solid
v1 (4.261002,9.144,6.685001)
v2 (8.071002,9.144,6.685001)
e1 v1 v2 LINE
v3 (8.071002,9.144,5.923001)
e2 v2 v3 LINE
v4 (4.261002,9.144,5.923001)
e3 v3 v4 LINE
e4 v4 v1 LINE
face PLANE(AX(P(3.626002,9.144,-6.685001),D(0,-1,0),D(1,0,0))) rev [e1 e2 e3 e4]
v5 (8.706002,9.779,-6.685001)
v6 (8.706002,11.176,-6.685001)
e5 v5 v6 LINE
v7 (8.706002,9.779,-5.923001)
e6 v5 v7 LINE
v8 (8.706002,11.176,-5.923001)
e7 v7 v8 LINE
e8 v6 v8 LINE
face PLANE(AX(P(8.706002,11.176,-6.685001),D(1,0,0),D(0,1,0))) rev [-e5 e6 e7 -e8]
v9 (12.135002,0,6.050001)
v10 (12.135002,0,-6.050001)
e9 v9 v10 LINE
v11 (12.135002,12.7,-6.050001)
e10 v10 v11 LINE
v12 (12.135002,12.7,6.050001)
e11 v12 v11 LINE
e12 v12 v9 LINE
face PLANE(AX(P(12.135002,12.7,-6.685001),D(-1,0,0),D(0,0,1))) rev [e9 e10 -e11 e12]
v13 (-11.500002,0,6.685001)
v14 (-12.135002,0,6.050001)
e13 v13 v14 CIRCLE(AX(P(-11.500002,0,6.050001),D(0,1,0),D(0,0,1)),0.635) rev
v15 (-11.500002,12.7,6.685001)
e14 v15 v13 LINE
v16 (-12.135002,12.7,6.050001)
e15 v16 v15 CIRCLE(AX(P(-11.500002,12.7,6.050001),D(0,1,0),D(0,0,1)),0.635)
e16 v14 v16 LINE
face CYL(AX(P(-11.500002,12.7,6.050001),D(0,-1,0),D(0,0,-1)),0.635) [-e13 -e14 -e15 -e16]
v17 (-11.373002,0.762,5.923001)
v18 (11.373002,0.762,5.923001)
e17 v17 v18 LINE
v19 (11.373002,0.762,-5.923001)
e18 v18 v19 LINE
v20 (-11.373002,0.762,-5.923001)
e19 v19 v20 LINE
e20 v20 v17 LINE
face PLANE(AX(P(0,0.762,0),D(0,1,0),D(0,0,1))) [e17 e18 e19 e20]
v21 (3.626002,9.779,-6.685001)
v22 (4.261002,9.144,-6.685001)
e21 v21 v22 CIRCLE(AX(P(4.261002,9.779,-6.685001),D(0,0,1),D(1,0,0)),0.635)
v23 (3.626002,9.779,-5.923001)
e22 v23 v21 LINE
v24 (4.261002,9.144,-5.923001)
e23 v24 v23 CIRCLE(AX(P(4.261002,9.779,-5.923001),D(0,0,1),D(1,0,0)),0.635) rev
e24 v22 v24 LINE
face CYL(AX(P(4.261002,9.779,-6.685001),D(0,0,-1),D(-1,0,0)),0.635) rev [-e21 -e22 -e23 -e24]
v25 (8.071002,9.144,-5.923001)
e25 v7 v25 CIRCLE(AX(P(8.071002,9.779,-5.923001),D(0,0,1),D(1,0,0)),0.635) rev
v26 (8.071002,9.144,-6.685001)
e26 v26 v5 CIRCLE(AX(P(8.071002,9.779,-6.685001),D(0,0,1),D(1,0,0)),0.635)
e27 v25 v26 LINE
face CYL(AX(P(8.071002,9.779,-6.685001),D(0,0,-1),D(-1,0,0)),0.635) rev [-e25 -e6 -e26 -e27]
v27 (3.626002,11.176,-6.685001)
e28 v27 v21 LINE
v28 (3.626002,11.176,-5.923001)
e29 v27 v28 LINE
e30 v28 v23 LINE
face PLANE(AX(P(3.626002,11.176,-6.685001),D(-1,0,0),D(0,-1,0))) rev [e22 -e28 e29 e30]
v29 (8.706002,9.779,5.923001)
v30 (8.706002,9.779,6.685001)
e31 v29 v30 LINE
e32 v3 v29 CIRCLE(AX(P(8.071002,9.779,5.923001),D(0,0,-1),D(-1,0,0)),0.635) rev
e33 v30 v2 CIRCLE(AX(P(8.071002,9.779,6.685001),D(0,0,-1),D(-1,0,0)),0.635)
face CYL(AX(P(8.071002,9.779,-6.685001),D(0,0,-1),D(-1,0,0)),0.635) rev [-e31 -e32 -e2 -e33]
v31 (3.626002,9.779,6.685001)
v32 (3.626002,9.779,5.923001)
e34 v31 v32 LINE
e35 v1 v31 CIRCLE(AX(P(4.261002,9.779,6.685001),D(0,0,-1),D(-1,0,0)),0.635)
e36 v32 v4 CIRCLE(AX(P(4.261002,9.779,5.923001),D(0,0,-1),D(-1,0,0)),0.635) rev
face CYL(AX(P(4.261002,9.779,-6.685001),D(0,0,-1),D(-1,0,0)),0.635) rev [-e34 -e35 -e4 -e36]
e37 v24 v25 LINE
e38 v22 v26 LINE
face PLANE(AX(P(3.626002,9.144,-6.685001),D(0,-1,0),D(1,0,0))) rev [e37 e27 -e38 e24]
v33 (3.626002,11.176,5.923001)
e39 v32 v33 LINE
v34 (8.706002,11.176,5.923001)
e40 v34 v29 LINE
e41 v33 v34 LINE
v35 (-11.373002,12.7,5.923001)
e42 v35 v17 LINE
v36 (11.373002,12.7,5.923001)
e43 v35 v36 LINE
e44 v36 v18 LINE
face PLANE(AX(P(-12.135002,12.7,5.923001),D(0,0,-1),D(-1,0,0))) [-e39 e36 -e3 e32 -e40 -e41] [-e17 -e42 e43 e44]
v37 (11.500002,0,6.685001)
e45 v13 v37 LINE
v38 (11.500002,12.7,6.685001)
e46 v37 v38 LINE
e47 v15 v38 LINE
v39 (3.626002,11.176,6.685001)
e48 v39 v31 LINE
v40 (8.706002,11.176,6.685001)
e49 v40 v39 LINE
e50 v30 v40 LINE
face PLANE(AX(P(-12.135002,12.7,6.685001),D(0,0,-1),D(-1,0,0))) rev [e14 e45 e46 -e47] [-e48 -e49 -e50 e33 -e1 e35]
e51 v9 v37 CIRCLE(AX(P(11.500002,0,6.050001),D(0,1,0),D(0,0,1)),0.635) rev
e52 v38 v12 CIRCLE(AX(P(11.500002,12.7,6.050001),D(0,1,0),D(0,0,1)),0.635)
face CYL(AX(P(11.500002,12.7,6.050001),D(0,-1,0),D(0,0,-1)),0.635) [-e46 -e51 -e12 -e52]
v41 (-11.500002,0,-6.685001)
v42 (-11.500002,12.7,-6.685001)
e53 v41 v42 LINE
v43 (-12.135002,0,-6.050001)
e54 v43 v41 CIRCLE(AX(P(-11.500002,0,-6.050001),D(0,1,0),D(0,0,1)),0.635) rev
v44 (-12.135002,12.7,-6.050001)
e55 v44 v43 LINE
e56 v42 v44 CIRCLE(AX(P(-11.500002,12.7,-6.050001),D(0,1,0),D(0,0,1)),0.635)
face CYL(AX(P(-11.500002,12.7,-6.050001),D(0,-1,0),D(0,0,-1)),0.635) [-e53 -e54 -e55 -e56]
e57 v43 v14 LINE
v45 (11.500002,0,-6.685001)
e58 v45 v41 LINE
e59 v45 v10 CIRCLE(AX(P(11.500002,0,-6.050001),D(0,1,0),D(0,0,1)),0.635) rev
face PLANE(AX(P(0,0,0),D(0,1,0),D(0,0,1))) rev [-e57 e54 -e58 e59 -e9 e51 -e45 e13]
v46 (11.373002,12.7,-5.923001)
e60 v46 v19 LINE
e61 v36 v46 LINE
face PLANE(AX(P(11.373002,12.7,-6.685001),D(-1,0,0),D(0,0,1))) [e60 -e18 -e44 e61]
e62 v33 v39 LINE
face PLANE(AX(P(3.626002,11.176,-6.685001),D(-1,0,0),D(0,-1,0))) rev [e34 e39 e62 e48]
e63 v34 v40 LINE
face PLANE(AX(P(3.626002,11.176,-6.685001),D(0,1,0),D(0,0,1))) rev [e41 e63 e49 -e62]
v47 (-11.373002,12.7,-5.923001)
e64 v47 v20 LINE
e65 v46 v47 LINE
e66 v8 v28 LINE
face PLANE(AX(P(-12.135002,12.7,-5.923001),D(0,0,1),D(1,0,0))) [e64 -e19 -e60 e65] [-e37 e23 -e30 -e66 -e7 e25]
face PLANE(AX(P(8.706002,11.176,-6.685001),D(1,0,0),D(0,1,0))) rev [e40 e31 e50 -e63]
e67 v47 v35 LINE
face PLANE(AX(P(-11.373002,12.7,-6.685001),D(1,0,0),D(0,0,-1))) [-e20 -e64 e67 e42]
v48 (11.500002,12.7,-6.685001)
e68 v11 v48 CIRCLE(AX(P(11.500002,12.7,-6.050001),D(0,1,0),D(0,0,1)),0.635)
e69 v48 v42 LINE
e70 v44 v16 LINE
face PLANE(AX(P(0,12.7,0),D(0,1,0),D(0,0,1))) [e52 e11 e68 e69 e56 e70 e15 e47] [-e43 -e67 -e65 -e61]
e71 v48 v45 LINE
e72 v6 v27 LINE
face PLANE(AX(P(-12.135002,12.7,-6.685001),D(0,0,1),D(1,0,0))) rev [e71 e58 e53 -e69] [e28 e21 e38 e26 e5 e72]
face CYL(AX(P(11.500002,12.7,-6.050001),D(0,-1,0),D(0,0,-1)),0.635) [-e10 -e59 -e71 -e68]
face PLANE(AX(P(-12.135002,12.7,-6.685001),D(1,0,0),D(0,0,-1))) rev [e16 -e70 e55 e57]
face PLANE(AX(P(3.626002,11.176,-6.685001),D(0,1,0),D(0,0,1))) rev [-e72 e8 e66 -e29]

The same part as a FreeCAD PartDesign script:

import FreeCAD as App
import Part
import Sketcher
Q = App.Units.Quantity


def edges_at(feature, points):
    """Names of the edges that pass closest to the given points."""
    edges = feature.Shape.Edges
    near = lambda p: min(range(len(edges)), key=lambda i: edges[i].distToShape(Part.Vertex(*p))[0])
    return sorted({f"Edge{near(p) + 1}" for p in points})


def faces_at(feature, points):
    """Names of the faces that lie closest to the given points."""
    faces = feature.Shape.Faces
    near = lambda p: min(range(len(faces)), key=lambda i: faces[i].distToShape(Part.Vertex(*p))[0])
    return sorted({f"Face{near(p) + 1}" for p in points})

doc = App.newDocument("Part")
body = doc.addObject("PartDesign::Body", "Body")

sketch1 = doc.addObject("Sketcher::SketchObject", "Sketch")
body.addObject(sketch1)
sketch1.AttachmentSupport = (doc.XZ_Plane, [""])
sketch1.MapMode = "FlatFace"
sketch1.addGeometry([
    Part.LineSegment(App.Vector(-12, -7, 0), App.Vector(-12, 7, 0)),
    Part.LineSegment(App.Vector(-12, 7, 0), App.Vector(12, 7, 0)),
    Part.LineSegment(App.Vector(12, 7, 0), App.Vector(12, -7, 0)),
    Part.LineSegment(App.Vector(12, -7, 0), App.Vector(-12, -7, 0)),
], False)
sketch1.addConstraint([
    Sketcher.Constraint("Coincident", 0, 2, 1, 1),
    Sketcher.Constraint("Coincident", 1, 2, 2, 1),
    Sketcher.Constraint("Coincident", 2, 2, 3, 1),
    Sketcher.Constraint("Coincident", 3, 2, 0, 1),
    Sketcher.Constraint("Vertical", 0),
    Sketcher.Constraint("Horizontal", 1),
    Sketcher.Constraint("Vertical", 2),
    Sketcher.Constraint("Horizontal", 3),
    Sketcher.Constraint("Symmetric", 0, 2, 2, 2, -1, 1),
    Sketcher.Constraint("DistanceY", 0, 1, 0, 2, Q("13.370001 mm")),
    Sketcher.Constraint("DistanceX", 1, 1, 1, 2, Q("24.270005 mm")),
])
pad1 = doc.addObject("PartDesign::Pad", "Pad")
body.addObject(pad1)
pad1.Profile = sketch1
pad1.Length = Q("0.5 in")
pad1.Reversed = True
doc.recompute()

thickness = doc.addObject("PartDesign::Thickness", "Thickness")
body.addObject(thickness)
thickness.Base = (pad1, faces_at(pad1, [(0, 12.7, 0)]))
thickness.Value = Q("0.03 in")
thickness.Reversed = True
thickness.Join = "Intersection"
doc.recompute()

fillet = doc.addObject("PartDesign::Fillet", "Fillet")
body.addObject(fillet)
fillet.Base = (thickness, edges_at(thickness, [
    (12.135, 6.35, 6.685),
    (-12.135, 6.35, 6.685),
    (-12.135, 6.35, -6.685),
    (12.135, 6.35, -6.685),
]))
fillet.Radius = Q("0.025 in")

sketch2 = doc.addObject("Sketcher::SketchObject", "Sketch001")
body.addObject(sketch2)
sketch2.AttachmentSupport = (doc.XY_Plane, [""])
sketch2.MapMode = "FlatFace"
sketch2.AttachmentOffset = App.Placement(App.Vector(0, 0, 6.685001), App.Rotation())
sketch2.addGeometry([
    Part.LineSegment(App.Vector(3.6, 11.2, 0), App.Vector(3.6, 9.1, 0)),
    Part.LineSegment(App.Vector(3.6, 9.1, 0), App.Vector(8.7, 9.1, 0)),
    Part.LineSegment(App.Vector(8.7, 9.1, 0), App.Vector(8.7, 11.2, 0)),
    Part.LineSegment(App.Vector(8.7, 11.2, 0), App.Vector(3.6, 11.2, 0)),
], False)
sketch2.addConstraint([
    Sketcher.Constraint("Coincident", 0, 2, 1, 1),
    Sketcher.Constraint("Coincident", 1, 2, 2, 1),
    Sketcher.Constraint("Coincident", 2, 2, 3, 1),
    Sketcher.Constraint("Coincident", 3, 2, 0, 1),
    Sketcher.Constraint("Vertical", 0),
    Sketcher.Constraint("Horizontal", 1),
    Sketcher.Constraint("Vertical", 2),
    Sketcher.Constraint("Horizontal", 3),
    Sketcher.Constraint("DistanceX", 1, 1, 1, 2, Q("0.2 in")),
    Sketcher.Constraint("DistanceY", 0, 2, 0, 1, Q("0.08 in")),
    Sketcher.Constraint("DistanceY", -1, 1, 0, 2, Q("0.36 in")),
    Sketcher.Constraint("DistanceX", -1, 1, 0, 2, Q("3.626002 mm")),
])
pocket1 = doc.addObject("PartDesign::Pocket", "Pocket")
body.addObject(pocket1)
pocket1.Profile = sketch2
pocket1.Type = "ThroughAll"
doc.recompute()

fillet2 = doc.addObject("PartDesign::Fillet", "Fillet001")
body.addObject(fillet2)
fillet2.Base = (pocket1, edges_at(pocket1, [
    (8.706, 9.144, -6.304),
    (3.626, 9.144, -6.304),
    (8.706, 9.144, 6.304),
    (3.626, 9.144, 6.304),
]))
fillet2.Radius = Q("0.025 in")

doc.recompute()
